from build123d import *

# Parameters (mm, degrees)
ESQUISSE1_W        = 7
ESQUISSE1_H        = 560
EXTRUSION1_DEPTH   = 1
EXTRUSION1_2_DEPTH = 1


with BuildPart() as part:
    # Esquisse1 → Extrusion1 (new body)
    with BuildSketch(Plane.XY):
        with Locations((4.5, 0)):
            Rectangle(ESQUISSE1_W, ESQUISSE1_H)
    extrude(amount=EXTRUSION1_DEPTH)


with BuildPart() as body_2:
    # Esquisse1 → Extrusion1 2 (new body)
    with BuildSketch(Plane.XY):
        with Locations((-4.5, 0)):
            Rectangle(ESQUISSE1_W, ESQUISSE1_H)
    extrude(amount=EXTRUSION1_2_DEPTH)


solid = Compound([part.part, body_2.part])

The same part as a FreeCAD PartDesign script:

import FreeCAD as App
import Part
import Sketcher
from FreeCAD import Vector
Q = App.Units.Quantity


def add_polygon(sketch, points):
    """Adds a closed chain of lines whose ends are joined by coincident constraints."""
    first, n = sketch.GeometryCount, len(points)
    for a, b in zip(points, points[1:] + points[:1]):
        sketch.addGeometry(Part.LineSegment(App.Vector(*a, 0), App.Vector(*b, 0)), False)
    for i in range(n):
        sketch.addConstraint(Sketcher.Constraint("Coincident", first + i, 2, first + (i + 1) % n, 1))

doc = App.newDocument("Part")
body = doc.addObject("PartDesign::Body", "Body")

# Sketch on XY plane
sketch1 = body.newObject("Sketcher::SketchObject", "Sketch")
sketch1.AttachmentSupport = (doc.getObject("XY_Plane"), [""])
sketch1.MapMode = "FlatFace"
add_polygon(sketch1, [(1, 280), (1, -280), (8, -280), (8, 280)])  # lines 0-3
sketch1.addConstraint([
    Sketcher.Constraint("Vertical", 0),
    Sketcher.Constraint("Horizontal", 1),
    Sketcher.Constraint("Vertical", 2),
    Sketcher.Constraint("Horizontal", 3),
    Sketcher.Constraint("DistanceX", 1, 1, 1, 2, Q("7 mm")),
    Sketcher.Constraint("DistanceY", 0, 2, 0, 1, Q("560 mm")),
    Sketcher.Constraint("DistanceX", -1, 1, 0, 2, Q("1 mm")),
    Sketcher.Constraint("DistanceY", 0, 2, -1, 1, Q("280 mm")),
])
pad1 = body.newObject("PartDesign::Pad", "Pad")
pad1.Profile = sketch1
pad1.Length = 1
body2 = doc.addObject("PartDesign::Body", "Body001")

# Sketch on XY plane
sketch2 = body2.newObject("Sketcher::SketchObject", "Sketch001")
sketch2.AttachmentSupport = (doc.getObject("XY_Plane001"), [""])
sketch2.MapMode = "FlatFace"
add_polygon(sketch2, [(-8, 280), (-8, -280), (-1, -280), (-1, 280)])  # lines 0-3
sketch2.addConstraint([
    Sketcher.Constraint("Vertical", 0),
    Sketcher.Constraint("Horizontal", 1),
    Sketcher.Constraint("Vertical", 2),
    Sketcher.Constraint("Horizontal", 3),
    Sketcher.Constraint("DistanceX", 1, 1, 1, 2, Q("7 mm")),
    Sketcher.Constraint("DistanceY", 0, 2, 0, 1, Q("560 mm")),
    Sketcher.Constraint("DistanceX", 0, 2, -1, 1, Q("8 mm")),
    Sketcher.Constraint("DistanceY", 0, 2, -1, 1, Q("280 mm")),
])
pad2 = body2.newObject("PartDesign::Pad", "Pad001")
pad2.Profile = sketch2
pad2.Length = 1

doc.recompute()
